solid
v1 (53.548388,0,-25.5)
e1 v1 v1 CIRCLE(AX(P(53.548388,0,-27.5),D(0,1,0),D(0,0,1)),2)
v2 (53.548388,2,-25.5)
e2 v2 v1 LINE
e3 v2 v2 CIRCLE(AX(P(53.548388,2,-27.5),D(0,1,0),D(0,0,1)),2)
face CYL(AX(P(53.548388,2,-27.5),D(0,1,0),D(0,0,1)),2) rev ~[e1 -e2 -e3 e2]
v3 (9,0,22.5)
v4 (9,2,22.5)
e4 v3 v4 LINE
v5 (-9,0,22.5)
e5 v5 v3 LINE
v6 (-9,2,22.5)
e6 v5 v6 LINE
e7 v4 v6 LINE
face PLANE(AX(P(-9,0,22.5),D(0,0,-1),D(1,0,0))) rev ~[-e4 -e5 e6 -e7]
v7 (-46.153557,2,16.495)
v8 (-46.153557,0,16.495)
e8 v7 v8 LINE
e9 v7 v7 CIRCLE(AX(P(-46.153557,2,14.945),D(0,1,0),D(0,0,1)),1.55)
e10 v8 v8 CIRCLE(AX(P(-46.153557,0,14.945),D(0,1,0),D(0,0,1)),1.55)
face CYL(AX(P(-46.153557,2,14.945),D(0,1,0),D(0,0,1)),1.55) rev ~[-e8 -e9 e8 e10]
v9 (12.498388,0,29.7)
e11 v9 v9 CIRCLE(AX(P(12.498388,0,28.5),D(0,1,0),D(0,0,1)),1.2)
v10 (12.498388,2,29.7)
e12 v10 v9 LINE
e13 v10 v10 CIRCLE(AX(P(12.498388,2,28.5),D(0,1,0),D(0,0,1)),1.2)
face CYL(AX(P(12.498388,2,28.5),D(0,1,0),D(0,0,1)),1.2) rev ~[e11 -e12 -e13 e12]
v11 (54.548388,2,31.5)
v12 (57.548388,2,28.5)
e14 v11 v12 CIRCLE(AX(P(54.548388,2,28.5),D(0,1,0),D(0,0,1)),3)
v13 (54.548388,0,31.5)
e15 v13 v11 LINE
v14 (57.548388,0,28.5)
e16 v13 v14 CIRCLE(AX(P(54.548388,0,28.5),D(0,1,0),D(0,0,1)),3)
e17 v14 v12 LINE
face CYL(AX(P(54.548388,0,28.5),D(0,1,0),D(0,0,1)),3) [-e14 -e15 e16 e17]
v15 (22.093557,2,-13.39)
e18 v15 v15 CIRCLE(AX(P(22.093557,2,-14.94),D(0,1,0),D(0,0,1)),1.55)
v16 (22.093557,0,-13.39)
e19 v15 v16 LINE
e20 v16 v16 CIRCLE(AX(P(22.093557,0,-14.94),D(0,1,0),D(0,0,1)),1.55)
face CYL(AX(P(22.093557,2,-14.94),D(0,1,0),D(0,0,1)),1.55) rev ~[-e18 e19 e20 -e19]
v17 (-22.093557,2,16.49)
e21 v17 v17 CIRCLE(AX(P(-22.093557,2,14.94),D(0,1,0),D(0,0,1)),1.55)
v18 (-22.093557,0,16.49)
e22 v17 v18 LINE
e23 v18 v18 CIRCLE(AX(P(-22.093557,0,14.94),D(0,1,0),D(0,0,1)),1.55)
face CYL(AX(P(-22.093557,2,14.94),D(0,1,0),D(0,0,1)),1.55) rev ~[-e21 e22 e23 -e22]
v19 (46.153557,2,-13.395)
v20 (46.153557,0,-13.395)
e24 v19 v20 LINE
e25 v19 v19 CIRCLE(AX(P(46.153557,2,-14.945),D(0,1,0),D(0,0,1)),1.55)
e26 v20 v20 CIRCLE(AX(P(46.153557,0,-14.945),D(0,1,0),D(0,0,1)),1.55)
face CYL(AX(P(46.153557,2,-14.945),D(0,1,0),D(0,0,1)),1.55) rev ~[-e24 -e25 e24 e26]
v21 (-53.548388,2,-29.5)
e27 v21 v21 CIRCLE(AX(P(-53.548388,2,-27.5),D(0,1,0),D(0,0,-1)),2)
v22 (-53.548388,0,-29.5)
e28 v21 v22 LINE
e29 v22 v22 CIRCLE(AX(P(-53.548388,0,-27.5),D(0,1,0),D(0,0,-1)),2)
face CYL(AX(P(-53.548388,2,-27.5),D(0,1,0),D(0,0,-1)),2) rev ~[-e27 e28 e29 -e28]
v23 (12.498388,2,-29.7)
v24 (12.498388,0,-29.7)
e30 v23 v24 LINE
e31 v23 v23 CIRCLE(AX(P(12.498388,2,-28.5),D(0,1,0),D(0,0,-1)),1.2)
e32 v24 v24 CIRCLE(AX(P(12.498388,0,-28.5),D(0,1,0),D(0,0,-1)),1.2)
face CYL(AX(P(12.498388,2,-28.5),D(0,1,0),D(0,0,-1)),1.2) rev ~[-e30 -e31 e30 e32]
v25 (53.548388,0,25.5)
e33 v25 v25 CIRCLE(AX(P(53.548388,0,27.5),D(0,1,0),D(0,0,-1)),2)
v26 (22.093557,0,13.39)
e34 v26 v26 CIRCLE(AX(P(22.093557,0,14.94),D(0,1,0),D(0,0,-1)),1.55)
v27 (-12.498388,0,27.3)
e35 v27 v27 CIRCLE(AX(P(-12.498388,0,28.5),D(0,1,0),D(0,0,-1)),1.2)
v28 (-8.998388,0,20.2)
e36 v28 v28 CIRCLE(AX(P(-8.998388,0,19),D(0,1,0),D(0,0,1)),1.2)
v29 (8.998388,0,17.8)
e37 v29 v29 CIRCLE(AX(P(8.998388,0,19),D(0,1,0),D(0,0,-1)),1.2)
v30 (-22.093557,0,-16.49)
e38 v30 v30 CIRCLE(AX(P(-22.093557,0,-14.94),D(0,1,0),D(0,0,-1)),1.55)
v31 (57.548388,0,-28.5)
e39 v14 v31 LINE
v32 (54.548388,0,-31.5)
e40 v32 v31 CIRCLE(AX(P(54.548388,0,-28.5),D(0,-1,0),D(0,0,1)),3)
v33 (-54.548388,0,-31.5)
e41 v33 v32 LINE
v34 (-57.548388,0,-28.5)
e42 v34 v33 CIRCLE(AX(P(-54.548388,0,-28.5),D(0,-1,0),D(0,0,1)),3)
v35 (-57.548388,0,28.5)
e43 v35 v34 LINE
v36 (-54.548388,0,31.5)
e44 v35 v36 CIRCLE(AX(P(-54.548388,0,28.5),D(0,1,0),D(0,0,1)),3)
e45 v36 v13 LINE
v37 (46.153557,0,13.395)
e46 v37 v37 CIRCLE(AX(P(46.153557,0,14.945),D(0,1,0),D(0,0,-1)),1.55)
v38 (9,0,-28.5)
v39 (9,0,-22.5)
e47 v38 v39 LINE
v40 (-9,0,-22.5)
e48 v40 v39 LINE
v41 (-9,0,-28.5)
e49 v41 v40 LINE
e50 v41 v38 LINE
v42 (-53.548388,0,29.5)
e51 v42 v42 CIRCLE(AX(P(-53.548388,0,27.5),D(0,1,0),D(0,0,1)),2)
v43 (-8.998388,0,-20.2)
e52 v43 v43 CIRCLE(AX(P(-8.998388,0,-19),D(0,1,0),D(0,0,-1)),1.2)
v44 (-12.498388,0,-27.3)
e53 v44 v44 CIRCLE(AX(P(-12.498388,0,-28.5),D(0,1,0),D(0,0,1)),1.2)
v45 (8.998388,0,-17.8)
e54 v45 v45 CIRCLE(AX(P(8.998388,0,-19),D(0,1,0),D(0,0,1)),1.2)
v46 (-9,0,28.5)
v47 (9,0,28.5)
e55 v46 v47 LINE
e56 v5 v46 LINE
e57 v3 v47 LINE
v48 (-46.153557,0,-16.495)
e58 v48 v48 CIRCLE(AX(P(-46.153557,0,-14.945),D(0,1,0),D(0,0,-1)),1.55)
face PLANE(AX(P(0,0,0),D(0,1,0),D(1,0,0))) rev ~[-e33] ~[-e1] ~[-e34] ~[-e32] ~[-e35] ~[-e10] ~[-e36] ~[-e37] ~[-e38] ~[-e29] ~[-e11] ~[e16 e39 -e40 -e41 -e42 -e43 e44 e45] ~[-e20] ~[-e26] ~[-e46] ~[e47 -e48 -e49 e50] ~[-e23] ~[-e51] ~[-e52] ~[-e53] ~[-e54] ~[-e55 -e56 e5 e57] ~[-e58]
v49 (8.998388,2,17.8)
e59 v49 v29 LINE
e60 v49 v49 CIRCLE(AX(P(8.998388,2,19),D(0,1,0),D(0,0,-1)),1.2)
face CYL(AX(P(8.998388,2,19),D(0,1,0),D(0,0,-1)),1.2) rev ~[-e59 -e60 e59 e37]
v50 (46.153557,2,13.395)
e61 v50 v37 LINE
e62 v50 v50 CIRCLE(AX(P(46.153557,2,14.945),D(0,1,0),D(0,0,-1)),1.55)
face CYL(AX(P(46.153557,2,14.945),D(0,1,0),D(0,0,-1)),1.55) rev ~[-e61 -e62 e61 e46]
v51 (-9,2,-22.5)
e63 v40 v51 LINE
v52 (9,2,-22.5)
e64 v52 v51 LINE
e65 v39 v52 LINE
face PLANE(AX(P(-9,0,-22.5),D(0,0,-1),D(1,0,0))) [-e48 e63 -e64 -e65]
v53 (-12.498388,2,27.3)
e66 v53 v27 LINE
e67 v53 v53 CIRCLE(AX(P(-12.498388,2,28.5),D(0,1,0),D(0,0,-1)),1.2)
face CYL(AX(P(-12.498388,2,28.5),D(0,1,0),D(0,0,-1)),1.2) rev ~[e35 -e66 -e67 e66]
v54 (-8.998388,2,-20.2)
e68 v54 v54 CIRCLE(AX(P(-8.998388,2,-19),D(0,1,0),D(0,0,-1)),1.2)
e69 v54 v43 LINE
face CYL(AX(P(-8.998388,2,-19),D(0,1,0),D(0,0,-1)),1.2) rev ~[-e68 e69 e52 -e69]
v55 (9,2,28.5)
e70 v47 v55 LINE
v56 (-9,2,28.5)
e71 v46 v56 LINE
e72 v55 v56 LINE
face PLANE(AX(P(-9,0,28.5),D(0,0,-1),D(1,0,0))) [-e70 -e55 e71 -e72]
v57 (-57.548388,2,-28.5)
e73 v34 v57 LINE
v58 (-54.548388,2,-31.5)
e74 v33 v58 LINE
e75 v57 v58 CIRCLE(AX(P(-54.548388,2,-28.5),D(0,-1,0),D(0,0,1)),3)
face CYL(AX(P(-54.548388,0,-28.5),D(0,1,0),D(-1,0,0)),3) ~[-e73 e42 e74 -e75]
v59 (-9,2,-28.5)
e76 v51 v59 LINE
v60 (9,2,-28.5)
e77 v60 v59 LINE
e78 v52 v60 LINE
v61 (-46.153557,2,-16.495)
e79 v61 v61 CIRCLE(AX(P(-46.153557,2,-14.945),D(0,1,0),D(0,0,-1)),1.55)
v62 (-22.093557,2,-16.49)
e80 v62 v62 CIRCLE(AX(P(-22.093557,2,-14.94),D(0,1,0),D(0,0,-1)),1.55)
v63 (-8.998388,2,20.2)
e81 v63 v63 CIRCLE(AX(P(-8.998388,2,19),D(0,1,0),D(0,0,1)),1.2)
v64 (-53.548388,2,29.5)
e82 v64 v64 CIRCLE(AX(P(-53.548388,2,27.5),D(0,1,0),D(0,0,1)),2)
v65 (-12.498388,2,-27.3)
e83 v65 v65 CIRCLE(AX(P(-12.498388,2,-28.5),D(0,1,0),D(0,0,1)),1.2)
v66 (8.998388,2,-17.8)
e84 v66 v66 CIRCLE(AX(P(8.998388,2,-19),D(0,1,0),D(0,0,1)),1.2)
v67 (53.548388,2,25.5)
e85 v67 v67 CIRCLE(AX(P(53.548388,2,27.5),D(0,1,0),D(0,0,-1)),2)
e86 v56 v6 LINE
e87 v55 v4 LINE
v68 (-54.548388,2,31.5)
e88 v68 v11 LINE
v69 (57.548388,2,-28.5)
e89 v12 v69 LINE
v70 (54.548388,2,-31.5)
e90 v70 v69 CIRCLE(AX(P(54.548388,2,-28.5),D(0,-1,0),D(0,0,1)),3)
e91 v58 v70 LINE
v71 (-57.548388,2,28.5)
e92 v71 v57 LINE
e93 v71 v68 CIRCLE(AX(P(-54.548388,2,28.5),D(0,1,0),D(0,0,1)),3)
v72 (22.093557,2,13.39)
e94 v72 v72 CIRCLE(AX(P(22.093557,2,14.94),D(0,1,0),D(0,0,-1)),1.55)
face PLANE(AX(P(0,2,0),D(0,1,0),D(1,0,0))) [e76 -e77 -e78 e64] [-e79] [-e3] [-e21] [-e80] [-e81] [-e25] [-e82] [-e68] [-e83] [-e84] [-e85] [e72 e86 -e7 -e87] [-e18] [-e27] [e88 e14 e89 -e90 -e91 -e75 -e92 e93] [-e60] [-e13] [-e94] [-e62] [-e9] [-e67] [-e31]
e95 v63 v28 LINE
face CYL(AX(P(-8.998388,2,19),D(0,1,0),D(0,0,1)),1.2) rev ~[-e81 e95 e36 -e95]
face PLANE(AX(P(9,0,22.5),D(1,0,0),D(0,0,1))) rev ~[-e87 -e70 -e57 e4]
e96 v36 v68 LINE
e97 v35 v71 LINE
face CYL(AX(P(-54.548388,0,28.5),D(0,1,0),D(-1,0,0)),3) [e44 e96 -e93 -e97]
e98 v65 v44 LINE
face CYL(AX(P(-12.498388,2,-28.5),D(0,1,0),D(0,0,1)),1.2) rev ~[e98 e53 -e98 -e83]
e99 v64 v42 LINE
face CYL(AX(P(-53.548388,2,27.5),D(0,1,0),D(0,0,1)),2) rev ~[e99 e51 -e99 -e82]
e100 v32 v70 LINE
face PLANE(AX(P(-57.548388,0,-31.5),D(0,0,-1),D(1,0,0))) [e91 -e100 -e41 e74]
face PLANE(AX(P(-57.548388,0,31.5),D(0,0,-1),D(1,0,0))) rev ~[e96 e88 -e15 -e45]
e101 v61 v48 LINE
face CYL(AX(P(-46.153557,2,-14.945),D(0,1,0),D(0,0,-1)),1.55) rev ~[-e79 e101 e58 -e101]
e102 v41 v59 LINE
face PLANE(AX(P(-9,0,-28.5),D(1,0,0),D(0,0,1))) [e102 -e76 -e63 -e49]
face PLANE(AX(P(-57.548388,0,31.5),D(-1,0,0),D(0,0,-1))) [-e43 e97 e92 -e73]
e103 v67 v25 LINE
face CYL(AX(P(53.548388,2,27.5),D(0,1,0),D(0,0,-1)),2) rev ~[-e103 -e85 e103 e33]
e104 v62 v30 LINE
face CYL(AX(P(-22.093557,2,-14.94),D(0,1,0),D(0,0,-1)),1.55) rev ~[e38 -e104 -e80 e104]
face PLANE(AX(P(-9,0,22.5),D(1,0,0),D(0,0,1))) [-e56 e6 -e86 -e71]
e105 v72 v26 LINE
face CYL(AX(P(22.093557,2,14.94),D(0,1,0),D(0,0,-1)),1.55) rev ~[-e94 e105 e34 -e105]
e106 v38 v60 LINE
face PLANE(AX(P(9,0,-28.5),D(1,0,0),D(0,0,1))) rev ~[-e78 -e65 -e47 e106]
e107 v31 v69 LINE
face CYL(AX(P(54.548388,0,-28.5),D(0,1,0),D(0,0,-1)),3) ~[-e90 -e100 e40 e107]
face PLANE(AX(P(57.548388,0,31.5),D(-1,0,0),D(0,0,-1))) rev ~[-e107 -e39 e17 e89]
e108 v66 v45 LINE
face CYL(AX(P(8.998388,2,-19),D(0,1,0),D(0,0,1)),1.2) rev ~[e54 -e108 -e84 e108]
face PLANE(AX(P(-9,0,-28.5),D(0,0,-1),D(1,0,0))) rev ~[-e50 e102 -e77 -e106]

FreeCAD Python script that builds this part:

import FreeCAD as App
import Part
import Sketcher
from FreeCAD import Vector
Q = App.Units.Quantity


def edges_at(feature, points):
    """Names of the edges that pass closest to the given points."""
    edges = feature.Shape.Edges
    near = lambda p: min(range(len(edges)), key=lambda i: edges[i].distToShape(Part.Vertex(*p))[0])
    return sorted({f"Edge{near(p) + 1}" for p in points})

doc = App.newDocument("Part")
params = doc.addObject("Spreadsheet::Sheet", "Params")
for row, (alias, value) in enumerate([
    ("sketch1_height", "63 mm"),
    ("pad1_length", "2 mm"),
    ("sketch2_diameter", "3.1 mm"),
    ("sketch3_width", "18 mm"),
    ("sketch3_height", "6 mm"),
    ("sketch4_diameter", "4 mm"),
    ("fillet_radius", "3 mm"),
    ("sketch5_diameter", "2.4 mm"),
], start=1):
    params.set(f"A{row}", alias)
    params.set(f"B{row}", "=" + value)
    params.setAlias(f"B{row}", alias)

body = doc.addObject("PartDesign::Body", "Body")

sketch1 = doc.addObject("Sketcher::SketchObject", "Sketch")
body.addObject(sketch1)
sketch1.AttachmentSupport = (doc.XZ_Plane, [""])
sketch1.MapMode = "FlatFace"
sketch1.addGeometry([
    Part.LineSegment(Vector(-58, -32, 0), Vector(-58, 32, 0)),
    Part.LineSegment(Vector(-58, 32, 0), Vector(58, 32, 0)),
    Part.LineSegment(Vector(58, 32, 0), Vector(58, -32, 0)),
    Part.LineSegment(Vector(58, -32, 0), Vector(-58, -32, 0)),
], False)
sketch1.addConstraint([
    Sketcher.Constraint("Coincident", 0, 2, 1, 1),
    Sketcher.Constraint("Coincident", 1, 2, 2, 1),
    Sketcher.Constraint("Coincident", 2, 2, 3, 1),
    Sketcher.Constraint("Coincident", 3, 2, 0, 1),
    Sketcher.Constraint("Vertical", 0),
    Sketcher.Constraint("Horizontal", 1),
    Sketcher.Constraint("Vertical", 2),
    Sketcher.Constraint("Horizontal", 3),
    Sketcher.Constraint("Symmetric", 0, 2, 2, 2, -1, 1),
    Sketcher.Constraint("DistanceY", 0, 1, 0, 2, Q("63 mm")),
    Sketcher.Constraint("DistanceX", 1, 1, 1, 2, Q("115.096777 mm")),
])
sketch1.setExpression("Constraints[9]", "Params.sketch1_height")
pad1 = doc.addObject("PartDesign::Pad", "Pad")
body.addObject(pad1)
pad1.Profile = sketch1
pad1.setExpression("Length", "Params.pad1_length")
pad1.Reversed = True

sketch2 = doc.addObject("Sketcher::SketchObject", "Sketch001")
body.addObject(sketch2)
sketch2.AttachmentSupport = (doc.XZ_Plane, [""])
sketch2.MapMode = "FlatFace"
sketch2.AttachmentOffset = App.Placement(Vector(0, 0, -2), App.Rotation())
sketch2.addGeometry([
    Part.Circle(Vector(-46.2, 14.9, 0), Vector(0, 0, 1), 1.6),
    Part.Circle(Vector(-22.1, 14.9, 0), Vector(0, 0, 1), 1.6),
    Part.Circle(Vector(22.1, 14.9, 0), Vector(0, 0, 1), 1.6),
    Part.Circle(Vector(46.2, 14.9, 0), Vector(0, 0, 1), 1.6),
    Part.Circle(Vector(46.2, -14.9, 0), Vector(0, 0, 1), 1.6),
    Part.Circle(Vector(22.1, -14.9, 0), Vector(0, 0, 1), 1.6),
    Part.Circle(Vector(-22.1, -14.9, 0), Vector(0, 0, 1), 1.6),
    Part.Circle(Vector(-46.2, -14.9, 0), Vector(0, 0, 1), 1.6),
], False)
sketch2.addConstraint([
    Sketcher.Constraint("Equal", 0, 1),
    Sketcher.Constraint("Equal", 1, 2),
    Sketcher.Constraint("Equal", 2, 3),
    Sketcher.Constraint("Equal", 3, 4),
    Sketcher.Constraint("Equal", 4, 5),
    Sketcher.Constraint("Equal", 5, 6),
    Sketcher.Constraint("Equal", 6, 7),
    Sketcher.Constraint("Symmetric", 0, 3, 4, 3, -1, 1),
    Sketcher.Constraint("Symmetric", 1, 3, 5, 3, -1, 1),
    Sketcher.Constraint("Symmetric", 2, 3, 6, 3, -1, 1),
    Sketcher.Constraint("Symmetric", 3, 3, 7, 3, -1, 1),
    Sketcher.Constraint("Symmetric", 1, 3, 2, 3, -2),
    Sketcher.Constraint("Symmetric", 0, 3, 3, 3, -2),
    Sketcher.Constraint("Diameter", 0, Q("3.1 mm")),
    Sketcher.Constraint("DistanceY", -1, 1, 1, 3, Q("14.94 mm")),
    Sketcher.Constraint("DistanceX", 0, 3, 1, 3, Q("24.06 mm")),
    Sketcher.Constraint("DistanceY", 4, 3, 3, 3, Q("29.89 mm")),
    Sketcher.Constraint("DistanceX", 0, 3, -1, 1, Q("46.153557 mm")),
])
sketch2.setExpression("Constraints[13]", "Params.sketch2_diameter")
pocket1 = doc.addObject("PartDesign::Pocket", "Pocket")
body.addObject(pocket1)
pocket1.Profile = sketch2
pocket1.Type = "ThroughAll"
pocket1.Reversed = True

sketch3 = doc.addObject("Sketcher::SketchObject", "Sketch002")
body.addObject(sketch3)
sketch3.AttachmentSupport = (doc.XZ_Plane, [""])
sketch3.MapMode = "FlatFace"
sketch3.addGeometry([
    Part.LineSegment(Vector(-9, 28, 0), Vector(-9, 22, 0)),
    Part.LineSegment(Vector(-9, 22, 0), Vector(9, 22, 0)),
    Part.LineSegment(Vector(9, 22, 0), Vector(9, 28, 0)),
    Part.LineSegment(Vector(9, 28, 0), Vector(-9, 28, 0)),
    Part.LineSegment(Vector(-9, -22, 0), Vector(-9, -28, 0)),
    Part.LineSegment(Vector(-9, -28, 0), Vector(9, -28, 0)),
    Part.LineSegment(Vector(9, -28, 0), Vector(9, -22, 0)),
    Part.LineSegment(Vector(9, -22, 0), Vector(-9, -22, 0)),
], False)
sketch3.addConstraint([
    Sketcher.Constraint("Coincident", 0, 2, 1, 1),
    Sketcher.Constraint("Coincident", 1, 2, 2, 1),
    Sketcher.Constraint("Coincident", 2, 2, 3, 1),
    Sketcher.Constraint("Coincident", 3, 2, 0, 1),
    Sketcher.Constraint("Coincident", 4, 2, 5, 1),
    Sketcher.Constraint("Coincident", 5, 2, 6, 1),
    Sketcher.Constraint("Coincident", 6, 2, 7, 1),
    Sketcher.Constraint("Coincident", 7, 2, 4, 1),
    Sketcher.Constraint("Vertical", 0),
    Sketcher.Constraint("Horizontal", 1),
    Sketcher.Constraint("Vertical", 2),
    Sketcher.Constraint("Horizontal", 3),
    Sketcher.Constraint("Vertical", 4),
    Sketcher.Constraint("Horizontal", 5),
    Sketcher.Constraint("Vertical", 6),
    Sketcher.Constraint("Horizontal", 7),
    Sketcher.Constraint("Symmetric", 2, 2, 4, 2, -1, 1),
    Sketcher.Constraint("Symmetric", 0, 2, 6, 2, -1, 1),
    Sketcher.Constraint("Vertical", 3, 2, 4, 2),
    Sketcher.Constraint("DistanceX", 1, 1, 1, 2, Q("18 mm")),
    Sketcher.Constraint("DistanceY", 0, 2, 0, 1, Q("6 mm")),
    Sketcher.Constraint("DistanceY", 4, 2, 0, 2, Q("51 mm")),
])
sketch3.setExpression("Constraints[19]", "Params.sketch3_width")
sketch3.setExpression("Constraints[20]", "Params.sketch3_height")
pocket2 = doc.addObject("PartDesign::Pocket", "Pocket001")
body.addObject(pocket2)
pocket2.Profile = sketch3
pocket2.Type = "ThroughAll"

sketch4 = doc.addObject("Sketcher::SketchObject", "Sketch003")
body.addObject(sketch4)
sketch4.AttachmentSupport = (doc.XZ_Plane, [""])
sketch4.MapMode = "FlatFace"
sketch4.AttachmentOffset = App.Placement(Vector(0, 0, -2), App.Rotation())
sketch4.addGeometry([
    Part.Circle(Vector(53.5, -27.5, 0), Vector(0, 0, 1), 2),
    Part.Circle(Vector(53.5, 27.5, 0), Vector(0, 0, 1), 2),
    Part.Circle(Vector(-53.5, 27.5, 0), Vector(0, 0, 1), 2),
    Part.Circle(Vector(-53.5, -27.5, 0), Vector(0, 0, 1), 2),
], False)
sketch4.addConstraint([
    Sketcher.Constraint("Equal", 0, 1),
    Sketcher.Constraint("Equal", 1, 2),
    Sketcher.Constraint("Equal", 2, 3),
    Sketcher.Constraint("Symmetric", 0, 3, 2, 3, -1, 1),
    Sketcher.Constraint("Symmetric", 1, 3, 3, 3, -1, 1),
    Sketcher.Constraint("Symmetric", 1, 3, 2, 3, -2),
    Sketcher.Constraint("Diameter", 0, Q("4 mm")),
    Sketcher.Constraint("DistanceY", 0, 3, 1, 3, Q("55 mm")),
    Sketcher.Constraint("DistanceX", -1, 1, 0, 3, Q("53.548388 mm")),
])
sketch4.setExpression("Constraints[6]", "Params.sketch4_diameter")
pocket3 = doc.addObject("PartDesign::Pocket", "Pocket002")
body.addObject(pocket3)
pocket3.Profile = sketch4
pocket3.Type = "ThroughAll"
pocket3.Reversed = True
doc.recompute()

fillet = doc.addObject("PartDesign::Fillet", "Fillet")
body.addObject(fillet)
fillet.Base = (pocket3, edges_at(pocket3, [
    (-57.548, 1, -31.5),
    (57.548, 1, -31.5),
    (57.548, 1, 31.5),
    (-57.548, 1, 31.5),
]))
fillet.setExpression("Radius", "Params.fillet_radius")

sketch5 = doc.addObject("Sketcher::SketchObject", "Sketch004")
body.addObject(sketch5)
sketch5.AttachmentSupport = (doc.XZ_Plane, [""])
sketch5.MapMode = "FlatFace"
sketch5.AttachmentOffset = App.Placement(Vector(0, 0, -2), App.Rotation())
sketch5.addGeometry([
    Part.Circle(Vector(-12.5, -28.5, 0), Vector(0, 0, 1), 1.2),
    Part.Circle(Vector(12.5, -28.5, 0), Vector(0, 0, 1), 1.2),
    Part.Circle(Vector(12.5, 28.5, 0), Vector(0, 0, 1), 1.2),
    Part.Circle(Vector(-12.5, 28.5, 0), Vector(0, 0, 1), 1.2),
    Part.Circle(Vector(-9, 19, 0), Vector(0, 0, 1), 1.2),
    Part.Circle(Vector(9, 19, 0), Vector(0, 0, 1), 1.2),
    Part.Circle(Vector(9, -19, 0), Vector(0, 0, 1), 1.2),
    Part.Circle(Vector(-9, -19, 0), Vector(0, 0, 1), 1.2),
], False)
sketch5.addConstraint([
    Sketcher.Constraint("Equal", 0, 1),
    Sketcher.Constraint("Equal", 1, 2),
    Sketcher.Constraint("Equal", 2, 3),
    Sketcher.Constraint("Equal", 3, 4),
    Sketcher.Constraint("Equal", 4, 5),
    Sketcher.Constraint("Equal", 5, 6),
    Sketcher.Constraint("Equal", 6, 7),
    Sketcher.Constraint("Symmetric", 0, 3, 2, 3, -1, 1),
    Sketcher.Constraint("Symmetric", 1, 3, 3, 3, -1, 1),
    Sketcher.Constraint("Symmetric", 4, 3, 6, 3, -1, 1),
    Sketcher.Constraint("Symmetric", 5, 3, 7, 3, -1, 1),
    Sketcher.Constraint("Symmetric", 0, 3, 1, 3, -2),
    Sketcher.Constraint("Symmetric", 4, 3, 5, 3, -2),
    Sketcher.Constraint("Diameter", 0, Q("2.4 mm")),
    Sketcher.Constraint("DistanceY", -1, 1, 4, 3, Q("19 mm")),
    Sketcher.Constraint("DistanceY", 1, 3, 2, 3, Q("57 mm")),
    Sketcher.Constraint("DistanceX", 3, 3, 4, 3, Q("3.5 mm")),
    Sketcher.Constraint("DistanceX", 0, 3, -1, 1, Q("12.498388 mm")),
])
sketch5.setExpression("Constraints[13]", "Params.sketch5_diameter")
pocket4 = doc.addObject("PartDesign::Pocket", "Pocket003")
body.addObject(pocket4)
pocket4.Profile = sketch5
pocket4.Type = "ThroughAll"
pocket4.Reversed = True

doc.recompute()
